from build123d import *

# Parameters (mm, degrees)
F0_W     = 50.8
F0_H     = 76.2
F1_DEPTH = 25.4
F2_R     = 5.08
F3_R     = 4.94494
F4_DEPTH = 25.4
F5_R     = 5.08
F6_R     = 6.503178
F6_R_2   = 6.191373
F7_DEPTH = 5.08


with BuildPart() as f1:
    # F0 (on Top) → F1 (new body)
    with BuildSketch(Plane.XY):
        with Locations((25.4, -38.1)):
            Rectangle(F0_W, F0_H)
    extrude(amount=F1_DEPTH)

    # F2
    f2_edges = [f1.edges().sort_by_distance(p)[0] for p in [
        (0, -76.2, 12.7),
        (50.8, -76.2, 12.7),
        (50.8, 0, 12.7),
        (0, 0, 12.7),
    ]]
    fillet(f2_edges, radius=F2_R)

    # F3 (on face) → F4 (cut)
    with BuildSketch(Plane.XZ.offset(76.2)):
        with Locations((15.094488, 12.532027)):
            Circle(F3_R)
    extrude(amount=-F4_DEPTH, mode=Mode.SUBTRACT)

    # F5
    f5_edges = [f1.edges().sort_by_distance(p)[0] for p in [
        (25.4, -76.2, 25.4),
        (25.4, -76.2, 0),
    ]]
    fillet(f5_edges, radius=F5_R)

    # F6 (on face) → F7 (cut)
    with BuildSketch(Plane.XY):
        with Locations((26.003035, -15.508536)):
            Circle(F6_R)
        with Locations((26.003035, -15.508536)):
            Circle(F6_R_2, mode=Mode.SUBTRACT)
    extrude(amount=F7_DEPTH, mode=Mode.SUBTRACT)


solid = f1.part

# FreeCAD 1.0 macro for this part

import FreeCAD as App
import Part
import Sketcher

V = App.Vector
Q = App.Units.Quantity


def edges_at(feature, points):
    """Names of the edges that pass closest to the given points."""
    edges = feature.Shape.Edges
    near = lambda p: min(range(len(edges)), key=lambda i: edges[i].distToShape(Part.Vertex(*p))[0])
    return sorted({f"Edge{near(p) + 1}" for p in points})

doc = App.newDocument("Part")
params = doc.addObject("Spreadsheet::Sheet", "Params")
for row, (alias, value) in enumerate([
    ("sketch1_width", "2 in"),
    ("sketch1_height", "3 in"),
    ("pad1_length", "1 in"),
    ("fillet_radius", "0.2 in"),
    ("pocket1_length", "1 in"),
    ("fillet2_radius", "0.2 in"),
    ("pocket2_length", "0.2 in"),
], start=1):
    params.set(f"A{row}", alias)
    params.set(f"B{row}", "=" + value)
    params.setAlias(f"B{row}", alias)

body = doc.addObject("PartDesign::Body", "Body")

sketch1 = body.newObject("Sketcher::SketchObject", "Sketch")
sketch1.AttachmentSupport = (doc.getObject("XY_Plane"), [""])
sketch1.MapMode = "FlatFace"
sketch1.addGeometry([
    Part.LineSegment(V(0, 0, 0), V(0, -76.2, 0)),
    Part.LineSegment(V(0, -76.2, 0), V(50.8, -76.2, 0)),
    Part.LineSegment(V(50.8, -76.2, 0), V(50.8, 0, 0)),
    Part.LineSegment(V(50.8, 0, 0), V(0, 0, 0)),
], False)
sketch1.addConstraint([
    Sketcher.Constraint("Coincident", 0, 2, 1, 1),
    Sketcher.Constraint("Coincident", 1, 2, 2, 1),
    Sketcher.Constraint("Coincident", 2, 2, 3, 1),
    Sketcher.Constraint("Coincident", 3, 2, 0, 1),
    Sketcher.Constraint("Vertical", 0),
    Sketcher.Constraint("Horizontal", 1),
    Sketcher.Constraint("Vertical", 2),
    Sketcher.Constraint("Horizontal", 3),
    Sketcher.Constraint("Coincident", 3, 2, -1, 1),
    Sketcher.Constraint("DistanceX", 1, 1, 1, 2, Q("2 in")),
    Sketcher.Constraint("DistanceY", 0, 2, 0, 1, Q("3 in")),
])
sketch1.setExpression("Constraints[9]", "Params.sketch1_width")
sketch1.setExpression("Constraints[10]", "Params.sketch1_height")
pad1 = body.newObject("PartDesign::Pad", "Pad")
pad1.Profile = sketch1
pad1.setExpression("Length", "Params.pad1_length")
doc.recompute()

fillet = body.newObject("PartDesign::Fillet", "Fillet")
fillet.Base = (pad1, edges_at(pad1, [
    (0, -76.2, 12.7),
    (50.8, -76.2, 12.7),
    (50.8, 0, 12.7),
    (0, 0, 12.7),
]))
fillet.setExpression("Radius", "Params.fillet_radius")

sketch2 = body.newObject("Sketcher::SketchObject", "Sketch001")
sketch2.AttachmentSupport = (doc.getObject("XZ_Plane"), [""])
sketch2.MapMode = "FlatFace"
sketch2.AttachmentOffset = App.Placement(V(0, 0, 3 * 25.4), App.Rotation())
sketch2.addGeometry(Part.Circle(V(15.094488, 12.532027, 0), V(0, 0, 1), 4.94494), False)
sketch2.addConstraint([
    Sketcher.Constraint("Diameter", 0, 9.88988),
    Sketcher.Constraint("DistanceX", -1, 1, 0, 3, 15.094488),
    Sketcher.Constraint("DistanceY", -1, 1, 0, 3, 12.532027),
])
pocket1 = body.newObject("PartDesign::Pocket", "Pocket")
pocket1.Profile = sketch2
pocket1.setExpression("Length", "Params.pocket1_length")
doc.recompute()

fillet2 = body.newObject("PartDesign::Fillet", "Fillet001")
fillet2.Base = (pocket1, edges_at(pocket1, [(25.4, -76.2, 25.4), (25.4, -76.2, 0)]))
fillet2.setExpression("Radius", "Params.fillet2_radius")

sketch3 = body.newObject("Sketcher::SketchObject", "Sketch002")
sketch3.AttachmentSupport = (doc.getObject("XY_Plane"), [""])
sketch3.MapMode = "FlatFace"
sketch3.addGeometry([
    Part.Circle(V(26.003035, -15.508536, 0), V(0, 0, 1), 6.503178),
    Part.Circle(V(26.003035, -15.508536, 0), V(0, 0, 1), 6.191373),
], False)
sketch3.addConstraint([
    Sketcher.Constraint("Coincident", 1, 3, 0, 3),
    Sketcher.Constraint("Diameter", 0, 13.006356),
    Sketcher.Constraint("Diameter", 1, 12.382746),
    Sketcher.Constraint("DistanceX", -1, 1, 0, 3, 26.003035),
    Sketcher.Constraint("DistanceY", 0, 3, -1, 1, 15.508536),
])
pocket2 = body.newObject("PartDesign::Pocket", "Pocket001")
pocket2.Profile = sketch3
pocket2.setExpression("Length", "Params.pocket2_length")
pocket2.Reversed = True

doc.recompute()
